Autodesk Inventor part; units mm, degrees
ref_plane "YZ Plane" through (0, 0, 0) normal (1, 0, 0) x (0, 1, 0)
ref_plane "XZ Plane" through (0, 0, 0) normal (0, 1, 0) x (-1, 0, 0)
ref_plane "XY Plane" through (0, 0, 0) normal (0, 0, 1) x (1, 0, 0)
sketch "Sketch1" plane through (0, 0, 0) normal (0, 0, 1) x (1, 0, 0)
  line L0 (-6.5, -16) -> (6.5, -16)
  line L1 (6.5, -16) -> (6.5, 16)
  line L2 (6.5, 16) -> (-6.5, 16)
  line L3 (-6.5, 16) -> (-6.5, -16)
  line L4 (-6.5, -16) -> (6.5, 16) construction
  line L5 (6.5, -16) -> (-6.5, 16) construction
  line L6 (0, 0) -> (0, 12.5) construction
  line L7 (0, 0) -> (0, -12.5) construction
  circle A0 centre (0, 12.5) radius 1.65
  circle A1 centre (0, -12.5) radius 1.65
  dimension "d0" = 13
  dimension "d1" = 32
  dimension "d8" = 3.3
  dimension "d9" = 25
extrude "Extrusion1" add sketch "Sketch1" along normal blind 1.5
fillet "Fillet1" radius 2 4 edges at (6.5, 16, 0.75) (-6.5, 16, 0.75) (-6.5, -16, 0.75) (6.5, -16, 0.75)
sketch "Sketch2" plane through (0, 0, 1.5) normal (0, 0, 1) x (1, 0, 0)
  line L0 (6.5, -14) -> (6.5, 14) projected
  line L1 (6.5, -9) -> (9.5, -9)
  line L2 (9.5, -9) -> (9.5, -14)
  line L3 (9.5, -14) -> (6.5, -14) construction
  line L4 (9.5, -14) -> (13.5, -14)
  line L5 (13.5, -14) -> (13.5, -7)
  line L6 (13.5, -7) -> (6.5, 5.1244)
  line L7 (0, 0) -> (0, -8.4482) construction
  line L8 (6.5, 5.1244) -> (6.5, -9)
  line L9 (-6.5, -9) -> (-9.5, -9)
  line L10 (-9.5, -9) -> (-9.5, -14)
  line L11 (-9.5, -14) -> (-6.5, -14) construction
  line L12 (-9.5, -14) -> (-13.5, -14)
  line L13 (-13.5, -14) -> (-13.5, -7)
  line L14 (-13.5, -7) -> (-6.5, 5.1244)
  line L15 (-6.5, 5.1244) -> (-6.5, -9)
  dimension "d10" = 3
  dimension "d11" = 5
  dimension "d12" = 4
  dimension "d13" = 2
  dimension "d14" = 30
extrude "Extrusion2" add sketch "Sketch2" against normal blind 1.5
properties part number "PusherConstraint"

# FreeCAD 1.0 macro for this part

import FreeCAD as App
import Part
import Sketcher
from FreeCAD import Vector
Q = App.Units.Quantity


def edges_at(feature, points):
    """Names of the edges that pass closest to the given points."""
    edges = feature.Shape.Edges
    near = lambda p: min(range(len(edges)), key=lambda i: edges[i].distToShape(Part.Vertex(*p))[0])
    return sorted({f"Edge{near(p) + 1}" for p in points})

doc = App.newDocument("Part")
body = doc.addObject("PartDesign::Body", "Body")

# Sketch on XY plane
sketch1 = doc.addObject("Sketcher::SketchObject", "Sketch")
body.addObject(sketch1)
sketch1.AttachmentSupport = (doc.XY_Plane, [""])
sketch1.MapMode = "FlatFace"
sketch1.addGeometry(Part.LineSegment(Vector(-6.5, 16, 0), Vector(-6.5, -16, 0)), False)
sketch1.addGeometry(Part.LineSegment(Vector(-6.5, -16, 0), Vector(6.5, -16, 0)), False)
sketch1.addGeometry(Part.LineSegment(Vector(6.5, -16, 0), Vector(6.5, 16, 0)), False)
sketch1.addGeometry(Part.LineSegment(Vector(6.5, 16, 0), Vector(-6.5, 16, 0)), False)
sketch1.addGeometry(Part.Circle(Vector(0, -12.5, 0), Vector(0, 0, 1), 1.6), False)
sketch1.addGeometry(Part.Circle(Vector(0, 12.5, 0), Vector(0, 0, 1), 1.6), False)
sketch1.addConstraint(Sketcher.Constraint("Coincident", 0, 2, 1, 1))
sketch1.addConstraint(Sketcher.Constraint("Coincident", 1, 2, 2, 1))
sketch1.addConstraint(Sketcher.Constraint("Coincident", 2, 2, 3, 1))
sketch1.addConstraint(Sketcher.Constraint("Coincident", 3, 2, 0, 1))
sketch1.addConstraint(Sketcher.Constraint("Vertical", 0))
sketch1.addConstraint(Sketcher.Constraint("Horizontal", 1))
sketch1.addConstraint(Sketcher.Constraint("Vertical", 2))
sketch1.addConstraint(Sketcher.Constraint("Horizontal", 3))
sketch1.addConstraint(Sketcher.Constraint("Equal", 4, 5))
sketch1.addConstraint(Sketcher.Constraint("Symmetric", 4, 3, 5, 3, -1, 1))
sketch1.addConstraint(Sketcher.Constraint("Symmetric", 0, 2, 2, 2, -1, 1))
sketch1.addConstraint(Sketcher.Constraint("PointOnObject", 4, 3, -2))
sketch1.addConstraint(Sketcher.Constraint("Diameter", 4, 3.3))
sketch1.addConstraint(Sketcher.Constraint("DistanceX", 1, 1, 1, 2, 13.0))
sketch1.addConstraint(Sketcher.Constraint("DistanceY", 0, 2, 0, 1, 32.0))
sketch1.addConstraint(Sketcher.Constraint("DistanceY", 4, 3, 5, 3, 25.0))
pad1 = doc.addObject("PartDesign::Pad", "Pad")
body.addObject(pad1)
pad1.Profile = sketch1
pad1.Length = 1.5
doc.recompute()

fillet = doc.addObject("PartDesign::Fillet", "Fillet")
body.addObject(fillet)
fillet.Base = (pad1, edges_at(pad1, [
    (6.5, 16, 0.75),
    (-6.5, 16, 0.75),
    (-6.5, -16, 0.75),
    (6.5, -16, 0.75),
]))
fillet.Radius = 2

# Sketch on XY plane
sketch2 = doc.addObject("Sketcher::SketchObject", "Sketch001")
body.addObject(sketch2)
sketch2.AttachmentSupport = (doc.XY_Plane, [""])
sketch2.MapMode = "FlatFace"
sketch2.AttachmentOffset = App.Placement(Vector(0, 0, 1.5), App.Rotation())
sketch2.addGeometry(Part.LineSegment(Vector(6.5, 5.1, 0), Vector(6.5, -9, 0)), False)
sketch2.addGeometry(Part.LineSegment(Vector(6.5, -9, 0), Vector(9.5, -9, 0)), False)
sketch2.addGeometry(Part.LineSegment(Vector(9.5, -9, 0), Vector(9.5, -14, 0)), False)
sketch2.addGeometry(Part.LineSegment(Vector(9.5, -14, 0), Vector(13.5, -14, 0)), False)
sketch2.addGeometry(Part.LineSegment(Vector(13.5, -14, 0), Vector(13.5, -7, 0)), False)
sketch2.addGeometry(Part.LineSegment(Vector(13.5, -7, 0), Vector(6.5, 5.1, 0)), False)
sketch2.addGeometry(Part.LineSegment(Vector(-9.5, -9, 0), Vector(-6.5, -9, 0)), False)
sketch2.addGeometry(Part.LineSegment(Vector(-6.5, -9, 0), Vector(-6.5, 5.1, 0)), False)
sketch2.addGeometry(Part.LineSegment(Vector(-6.5, 5.1, 0), Vector(-13.5, -7, 0)), False)
sketch2.addGeometry(Part.LineSegment(Vector(-13.5, -7, 0), Vector(-13.5, -14, 0)), False)
sketch2.addGeometry(Part.LineSegment(Vector(-13.5, -14, 0), Vector(-9.5, -14, 0)), False)
sketch2.addGeometry(Part.LineSegment(Vector(-9.5, -14, 0), Vector(-9.5, -9, 0)), False)
sketch2.addConstraint(Sketcher.Constraint("Coincident", 0, 2, 1, 1))
sketch2.addConstraint(Sketcher.Constraint("Coincident", 1, 2, 2, 1))
sketch2.addConstraint(Sketcher.Constraint("Coincident", 2, 2, 3, 1))
sketch2.addConstraint(Sketcher.Constraint("Coincident", 3, 2, 4, 1))
sketch2.addConstraint(Sketcher.Constraint("Coincident", 4, 2, 5, 1))
sketch2.addConstraint(Sketcher.Constraint("Coincident", 5, 2, 0, 1))
sketch2.addConstraint(Sketcher.Constraint("Coincident", 6, 2, 7, 1))
sketch2.addConstraint(Sketcher.Constraint("Coincident", 7, 2, 8, 1))
sketch2.addConstraint(Sketcher.Constraint("Coincident", 8, 2, 9, 1))
sketch2.addConstraint(Sketcher.Constraint("Coincident", 9, 2, 10, 1))
sketch2.addConstraint(Sketcher.Constraint("Coincident", 10, 2, 11, 1))
sketch2.addConstraint(Sketcher.Constraint("Coincident", 11, 2, 6, 1))
sketch2.addConstraint(Sketcher.Constraint("Vertical", 0))
sketch2.addConstraint(Sketcher.Constraint("Horizontal", 1))
sketch2.addConstraint(Sketcher.Constraint("Vertical", 2))
sketch2.addConstraint(Sketcher.Constraint("Horizontal", 3))
sketch2.addConstraint(Sketcher.Constraint("Vertical", 4))
sketch2.addConstraint(Sketcher.Constraint("Horizontal", 6))
sketch2.addConstraint(Sketcher.Constraint("Vertical", 7))
sketch2.addConstraint(Sketcher.Constraint("Vertical", 9))
sketch2.addConstraint(Sketcher.Constraint("Horizontal", 10))
sketch2.addConstraint(Sketcher.Constraint("Vertical", 11))
sketch2.addConstraint(Sketcher.Constraint("Symmetric", 0, 2, 6, 2, -2))
sketch2.addConstraint(Sketcher.Constraint("Symmetric", 4, 2, 8, 2, -2))
sketch2.addConstraint(Sketcher.Constraint("Symmetric", 2, 2, 10, 2, -2))
sketch2.addConstraint(Sketcher.Constraint("Horizontal", 5, 2, 7, 2))
sketch2.addConstraint(Sketcher.Constraint("DistanceX", 1, 1, 1, 2, 3.0))
sketch2.addConstraint(Sketcher.Constraint("DistanceX", 3, 1, 3, 2, 4.0))
sketch2.addConstraint(Sketcher.Constraint("DistanceY", 2, 2, 2, 1, 5.0))
sketch2.addConstraint(Sketcher.Constraint("DistanceY", 1, 2, 4, 2, 2.0))
sketch2.addConstraint(Sketcher.Constraint("Angle", 5, Q("120 deg")))
sketch2.addConstraint(Sketcher.Constraint("DistanceY", 0, 2, -1, 1, 9.0))
sketch2.addConstraint(Sketcher.Constraint("DistanceX", 6, 2, 0, 2, 13.0))
pad2 = doc.addObject("PartDesign::Pad", "Pad001")
body.addObject(pad2)
pad2.Profile = sketch2
pad2.Length = 1.5
pad2.Reversed = True

doc.recompute()
